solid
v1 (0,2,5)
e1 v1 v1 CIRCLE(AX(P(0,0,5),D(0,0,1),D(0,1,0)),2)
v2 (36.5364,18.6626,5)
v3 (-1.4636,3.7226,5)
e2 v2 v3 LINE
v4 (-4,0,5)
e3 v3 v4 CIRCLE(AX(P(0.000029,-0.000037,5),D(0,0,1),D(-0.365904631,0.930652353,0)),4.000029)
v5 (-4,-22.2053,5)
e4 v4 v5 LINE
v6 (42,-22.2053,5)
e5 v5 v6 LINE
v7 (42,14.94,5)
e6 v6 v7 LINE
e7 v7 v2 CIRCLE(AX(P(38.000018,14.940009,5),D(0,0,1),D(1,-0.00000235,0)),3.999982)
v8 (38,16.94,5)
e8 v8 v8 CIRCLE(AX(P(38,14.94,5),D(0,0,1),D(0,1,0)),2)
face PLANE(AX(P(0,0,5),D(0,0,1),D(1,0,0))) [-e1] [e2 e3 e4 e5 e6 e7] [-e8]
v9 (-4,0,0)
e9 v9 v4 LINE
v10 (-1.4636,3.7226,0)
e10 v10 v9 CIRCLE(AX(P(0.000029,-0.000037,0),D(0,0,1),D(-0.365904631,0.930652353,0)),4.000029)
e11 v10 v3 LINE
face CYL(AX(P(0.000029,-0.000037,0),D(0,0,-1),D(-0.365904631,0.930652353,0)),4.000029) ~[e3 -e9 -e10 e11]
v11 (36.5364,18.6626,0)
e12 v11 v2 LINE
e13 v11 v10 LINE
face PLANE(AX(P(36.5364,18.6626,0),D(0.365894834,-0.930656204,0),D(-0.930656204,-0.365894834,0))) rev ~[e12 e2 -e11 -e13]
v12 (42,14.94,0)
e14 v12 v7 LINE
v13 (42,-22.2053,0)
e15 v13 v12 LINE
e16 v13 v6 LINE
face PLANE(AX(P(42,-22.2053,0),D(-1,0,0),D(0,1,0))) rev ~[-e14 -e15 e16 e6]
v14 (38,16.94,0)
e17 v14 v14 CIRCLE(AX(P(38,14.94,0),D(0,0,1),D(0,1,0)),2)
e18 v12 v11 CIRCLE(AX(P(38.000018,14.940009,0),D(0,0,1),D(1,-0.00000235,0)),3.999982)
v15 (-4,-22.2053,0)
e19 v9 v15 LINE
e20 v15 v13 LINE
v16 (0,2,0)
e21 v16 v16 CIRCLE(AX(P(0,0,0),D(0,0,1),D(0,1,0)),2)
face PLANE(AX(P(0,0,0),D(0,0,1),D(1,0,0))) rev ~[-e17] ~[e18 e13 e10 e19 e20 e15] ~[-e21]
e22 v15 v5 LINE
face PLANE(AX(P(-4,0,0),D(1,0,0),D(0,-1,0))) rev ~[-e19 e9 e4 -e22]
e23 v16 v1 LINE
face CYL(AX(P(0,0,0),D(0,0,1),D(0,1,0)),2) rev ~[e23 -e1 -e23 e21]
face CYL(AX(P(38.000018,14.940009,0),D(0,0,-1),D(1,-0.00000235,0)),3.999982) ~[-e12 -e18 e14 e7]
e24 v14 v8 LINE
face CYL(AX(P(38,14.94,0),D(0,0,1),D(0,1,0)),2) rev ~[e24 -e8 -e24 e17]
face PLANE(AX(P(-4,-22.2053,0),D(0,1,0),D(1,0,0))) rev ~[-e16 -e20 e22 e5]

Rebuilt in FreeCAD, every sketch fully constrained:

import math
import FreeCAD as App
import Part
import Sketcher

doc = App.newDocument("Part")
body = doc.addObject("PartDesign::Body", "Body")

# Sketch on XY plane
sketch1 = doc.addObject("Sketcher::SketchObject", "Sketch")
body.addObject(sketch1)
sketch1.AttachmentSupport = (doc.XY_Plane, [""])
sketch1.MapMode = "FlatFace"
sketch1.addGeometry([
    Part.ArcOfCircle(Part.Circle(App.Vector(38, 14.9, 0), App.Vector(0, 0, 1), 4), math.radians(0), math.radians(111)),  # 0
    Part.LineSegment(App.Vector(36.5, 18.7, 0), App.Vector(-1.5, 3.7, 0)),  # 1
    Part.ArcOfCircle(Part.Circle(App.Vector(0, 0, 0), App.Vector(0, 0, 1), 4), math.radians(111), math.radians(180)),  # 2
    Part.LineSegment(App.Vector(-4, 0, 0), App.Vector(-4, -22.2, 0)),  # 3
    Part.LineSegment(App.Vector(-4, -22.2, 0), App.Vector(42, -22.2, 0)),  # 4
    Part.LineSegment(App.Vector(42, -22.2, 0), App.Vector(42, 14.9, 0)),  # 5
], False)
sketch1.addConstraint([
    Sketcher.Constraint("Tangent", 0, 2, 1, 1),
    Sketcher.Constraint("Tangent", 1, 2, 2, 1),
    Sketcher.Constraint("Tangent", 2, 2, 3, 1),
    Sketcher.Constraint("Coincident", 3, 2, 4, 1),
    Sketcher.Constraint("Coincident", 4, 2, 5, 1),
    Sketcher.Constraint("Tangent", 5, 2, 0, 1),
    Sketcher.Constraint("Vertical", 3),
    Sketcher.Constraint("Horizontal", 4),
    Sketcher.Constraint("Vertical", 5),
    Sketcher.Constraint("Coincident", 2, 3, -1, 1),
    Sketcher.Constraint("Equal", 0, 2),
    Sketcher.Constraint("Radius", 0, 4.0),
    Sketcher.Constraint("DistanceX", -1, 1, 0, 3, 38.0),
    Sketcher.Constraint("DistanceY", -1, 1, 0, 3, 14.94),
    Sketcher.Constraint("DistanceY", 3, 2, 3, 1, 22.2053),
])
pad1 = doc.addObject("PartDesign::Pad", "Pad")
body.addObject(pad1)
pad1.Profile = sketch1
pad1.Length = 5

# Sketch on XY plane
sketch2 = doc.addObject("Sketcher::SketchObject", "Sketch001")
body.addObject(sketch2)
sketch2.AttachmentSupport = (doc.XY_Plane, [""])
sketch2.MapMode = "FlatFace"
sketch2.addGeometry([
    Part.Circle(App.Vector(0, 0, 0), App.Vector(0, 0, 1), 2),
    Part.Circle(App.Vector(38, 14.9, 0), App.Vector(0, 0, 1), 2),
], False)
sketch2.addConstraint([
    Sketcher.Constraint("Coincident", 0, 3, -1, 1),
    Sketcher.Constraint("Equal", 0, 1),
    Sketcher.Constraint("Diameter", 0, 4.0),
    Sketcher.Constraint("DistanceX", -1, 1, 1, 3, 38.0),
    Sketcher.Constraint("DistanceY", -1, 1, 1, 3, 14.94),
])
doc.recompute()
hole = doc.addObject("PartDesign::Hole", "Hole")
body.addObject(hole)
hole.Profile = sketch2
hole.ThreadType = "None"
hole.Diameter = 4
hole.DepthType = "ThroughAll"
hole.Reversed = True

doc.recompute()
